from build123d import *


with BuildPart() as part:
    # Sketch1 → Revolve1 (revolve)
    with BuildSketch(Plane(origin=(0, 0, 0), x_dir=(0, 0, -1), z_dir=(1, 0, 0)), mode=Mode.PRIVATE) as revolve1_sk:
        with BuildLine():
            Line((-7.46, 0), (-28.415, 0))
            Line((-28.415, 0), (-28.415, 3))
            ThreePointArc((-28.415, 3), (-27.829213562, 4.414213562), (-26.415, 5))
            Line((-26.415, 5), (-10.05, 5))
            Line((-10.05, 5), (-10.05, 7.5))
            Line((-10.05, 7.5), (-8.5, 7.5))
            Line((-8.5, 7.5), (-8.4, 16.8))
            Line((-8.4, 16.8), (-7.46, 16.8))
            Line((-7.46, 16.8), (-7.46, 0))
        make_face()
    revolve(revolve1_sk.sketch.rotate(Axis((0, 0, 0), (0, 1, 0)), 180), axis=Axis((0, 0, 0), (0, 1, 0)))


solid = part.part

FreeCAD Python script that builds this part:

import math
import FreeCAD as App
import Part
import Sketcher

V = App.Vector
Q = App.Units.Quantity

doc = App.newDocument("Part")
body = doc.addObject("PartDesign::Body", "Body")

# Sketch on YZ plane
sketch1 = body.newObject("Sketcher::SketchObject", "Sketch")
sketch1.AttachmentSupport = (doc.getObject("YZ_Plane"), [""])
sketch1.MapMode = "FlatFace"
sketch1.addGeometry([
    Part.LineSegment(V(0, 28.4, 0), V(0, 7.5, 0)),  # 0
    Part.LineSegment(V(0, 7.5, 0), V(16.8, 7.5, 0)),  # 1
    Part.LineSegment(V(16.8, 7.5, 0), V(16.8, 8.4, 0)),  # 2
    Part.LineSegment(V(16.8, 8.4, 0), V(7.5, 8.5, 0)),  # 3
    Part.LineSegment(V(7.5, 8.5, 0), V(7.5, 10.1, 0)),  # 4
    Part.LineSegment(V(7.5, 10.1, 0), V(5, 10.1, 0)),  # 5
    Part.LineSegment(V(5, 10.1, 0), V(5, 26.4, 0)),  # 6
    Part.ArcOfCircle(Part.Circle(V(3, 26.4, 0), V(0, 0, 1), 2), math.radians(0), math.radians(90)),  # 7
    Part.LineSegment(V(3, 28.4, 0), V(0, 28.4, 0)),  # 8
], False)
sketch1.addConstraint([
    Sketcher.Constraint("Coincident", 0, 2, 1, 1),
    Sketcher.Constraint("Coincident", 1, 2, 2, 1),
    Sketcher.Constraint("Coincident", 2, 2, 3, 1),
    Sketcher.Constraint("Coincident", 3, 2, 4, 1),
    Sketcher.Constraint("Coincident", 4, 2, 5, 1),
    Sketcher.Constraint("Coincident", 5, 2, 6, 1),
    Sketcher.Constraint("Tangent", 6, 2, 7, 1),
    Sketcher.Constraint("Tangent", 7, 2, 8, 1),
    Sketcher.Constraint("Coincident", 8, 2, 0, 1),
    Sketcher.Constraint("Vertical", 0),
    Sketcher.Constraint("Horizontal", 1),
    Sketcher.Constraint("Vertical", 2),
    Sketcher.Constraint("Vertical", 4),
    Sketcher.Constraint("Horizontal", 5),
    Sketcher.Constraint("Vertical", 6),
    Sketcher.Constraint("Horizontal", 8),
    Sketcher.Constraint("PointOnObject", 0, 2, -2),
    Sketcher.Constraint("Radius", 7, Q("2 mm")),
    Sketcher.Constraint("DistanceX", 8, 2, 8, 1, Q("3 mm")),
    Sketcher.Constraint("DistanceX", 1, 1, 1, 2, Q("16.8 mm")),
    Sketcher.Constraint("DistanceX", 5, 2, 5, 1, Q("2.5 mm")),
    Sketcher.Constraint("DistanceY", 2, 1, 2, 2, Q("0.94 mm")),
    Sketcher.Constraint("DistanceY", 4, 1, 4, 2, Q("1.55 mm")),
    Sketcher.Constraint("DistanceY", -1, 1, 2, 2, Q("8.4 mm")),
    Sketcher.Constraint("DistanceY", -1, 1, 3, 2, Q("8.5 mm")),
    Sketcher.Constraint("DistanceY", 0, 2, 0, 1, Q("20.955 mm")),
])
revolution = body.newObject("PartDesign::Revolution", "Revolution")
revolution.Profile = sketch1
revolution.ReferenceAxis = (sketch1, ["H_Axis"])
revolution.Angle = 360

doc.recompute()
